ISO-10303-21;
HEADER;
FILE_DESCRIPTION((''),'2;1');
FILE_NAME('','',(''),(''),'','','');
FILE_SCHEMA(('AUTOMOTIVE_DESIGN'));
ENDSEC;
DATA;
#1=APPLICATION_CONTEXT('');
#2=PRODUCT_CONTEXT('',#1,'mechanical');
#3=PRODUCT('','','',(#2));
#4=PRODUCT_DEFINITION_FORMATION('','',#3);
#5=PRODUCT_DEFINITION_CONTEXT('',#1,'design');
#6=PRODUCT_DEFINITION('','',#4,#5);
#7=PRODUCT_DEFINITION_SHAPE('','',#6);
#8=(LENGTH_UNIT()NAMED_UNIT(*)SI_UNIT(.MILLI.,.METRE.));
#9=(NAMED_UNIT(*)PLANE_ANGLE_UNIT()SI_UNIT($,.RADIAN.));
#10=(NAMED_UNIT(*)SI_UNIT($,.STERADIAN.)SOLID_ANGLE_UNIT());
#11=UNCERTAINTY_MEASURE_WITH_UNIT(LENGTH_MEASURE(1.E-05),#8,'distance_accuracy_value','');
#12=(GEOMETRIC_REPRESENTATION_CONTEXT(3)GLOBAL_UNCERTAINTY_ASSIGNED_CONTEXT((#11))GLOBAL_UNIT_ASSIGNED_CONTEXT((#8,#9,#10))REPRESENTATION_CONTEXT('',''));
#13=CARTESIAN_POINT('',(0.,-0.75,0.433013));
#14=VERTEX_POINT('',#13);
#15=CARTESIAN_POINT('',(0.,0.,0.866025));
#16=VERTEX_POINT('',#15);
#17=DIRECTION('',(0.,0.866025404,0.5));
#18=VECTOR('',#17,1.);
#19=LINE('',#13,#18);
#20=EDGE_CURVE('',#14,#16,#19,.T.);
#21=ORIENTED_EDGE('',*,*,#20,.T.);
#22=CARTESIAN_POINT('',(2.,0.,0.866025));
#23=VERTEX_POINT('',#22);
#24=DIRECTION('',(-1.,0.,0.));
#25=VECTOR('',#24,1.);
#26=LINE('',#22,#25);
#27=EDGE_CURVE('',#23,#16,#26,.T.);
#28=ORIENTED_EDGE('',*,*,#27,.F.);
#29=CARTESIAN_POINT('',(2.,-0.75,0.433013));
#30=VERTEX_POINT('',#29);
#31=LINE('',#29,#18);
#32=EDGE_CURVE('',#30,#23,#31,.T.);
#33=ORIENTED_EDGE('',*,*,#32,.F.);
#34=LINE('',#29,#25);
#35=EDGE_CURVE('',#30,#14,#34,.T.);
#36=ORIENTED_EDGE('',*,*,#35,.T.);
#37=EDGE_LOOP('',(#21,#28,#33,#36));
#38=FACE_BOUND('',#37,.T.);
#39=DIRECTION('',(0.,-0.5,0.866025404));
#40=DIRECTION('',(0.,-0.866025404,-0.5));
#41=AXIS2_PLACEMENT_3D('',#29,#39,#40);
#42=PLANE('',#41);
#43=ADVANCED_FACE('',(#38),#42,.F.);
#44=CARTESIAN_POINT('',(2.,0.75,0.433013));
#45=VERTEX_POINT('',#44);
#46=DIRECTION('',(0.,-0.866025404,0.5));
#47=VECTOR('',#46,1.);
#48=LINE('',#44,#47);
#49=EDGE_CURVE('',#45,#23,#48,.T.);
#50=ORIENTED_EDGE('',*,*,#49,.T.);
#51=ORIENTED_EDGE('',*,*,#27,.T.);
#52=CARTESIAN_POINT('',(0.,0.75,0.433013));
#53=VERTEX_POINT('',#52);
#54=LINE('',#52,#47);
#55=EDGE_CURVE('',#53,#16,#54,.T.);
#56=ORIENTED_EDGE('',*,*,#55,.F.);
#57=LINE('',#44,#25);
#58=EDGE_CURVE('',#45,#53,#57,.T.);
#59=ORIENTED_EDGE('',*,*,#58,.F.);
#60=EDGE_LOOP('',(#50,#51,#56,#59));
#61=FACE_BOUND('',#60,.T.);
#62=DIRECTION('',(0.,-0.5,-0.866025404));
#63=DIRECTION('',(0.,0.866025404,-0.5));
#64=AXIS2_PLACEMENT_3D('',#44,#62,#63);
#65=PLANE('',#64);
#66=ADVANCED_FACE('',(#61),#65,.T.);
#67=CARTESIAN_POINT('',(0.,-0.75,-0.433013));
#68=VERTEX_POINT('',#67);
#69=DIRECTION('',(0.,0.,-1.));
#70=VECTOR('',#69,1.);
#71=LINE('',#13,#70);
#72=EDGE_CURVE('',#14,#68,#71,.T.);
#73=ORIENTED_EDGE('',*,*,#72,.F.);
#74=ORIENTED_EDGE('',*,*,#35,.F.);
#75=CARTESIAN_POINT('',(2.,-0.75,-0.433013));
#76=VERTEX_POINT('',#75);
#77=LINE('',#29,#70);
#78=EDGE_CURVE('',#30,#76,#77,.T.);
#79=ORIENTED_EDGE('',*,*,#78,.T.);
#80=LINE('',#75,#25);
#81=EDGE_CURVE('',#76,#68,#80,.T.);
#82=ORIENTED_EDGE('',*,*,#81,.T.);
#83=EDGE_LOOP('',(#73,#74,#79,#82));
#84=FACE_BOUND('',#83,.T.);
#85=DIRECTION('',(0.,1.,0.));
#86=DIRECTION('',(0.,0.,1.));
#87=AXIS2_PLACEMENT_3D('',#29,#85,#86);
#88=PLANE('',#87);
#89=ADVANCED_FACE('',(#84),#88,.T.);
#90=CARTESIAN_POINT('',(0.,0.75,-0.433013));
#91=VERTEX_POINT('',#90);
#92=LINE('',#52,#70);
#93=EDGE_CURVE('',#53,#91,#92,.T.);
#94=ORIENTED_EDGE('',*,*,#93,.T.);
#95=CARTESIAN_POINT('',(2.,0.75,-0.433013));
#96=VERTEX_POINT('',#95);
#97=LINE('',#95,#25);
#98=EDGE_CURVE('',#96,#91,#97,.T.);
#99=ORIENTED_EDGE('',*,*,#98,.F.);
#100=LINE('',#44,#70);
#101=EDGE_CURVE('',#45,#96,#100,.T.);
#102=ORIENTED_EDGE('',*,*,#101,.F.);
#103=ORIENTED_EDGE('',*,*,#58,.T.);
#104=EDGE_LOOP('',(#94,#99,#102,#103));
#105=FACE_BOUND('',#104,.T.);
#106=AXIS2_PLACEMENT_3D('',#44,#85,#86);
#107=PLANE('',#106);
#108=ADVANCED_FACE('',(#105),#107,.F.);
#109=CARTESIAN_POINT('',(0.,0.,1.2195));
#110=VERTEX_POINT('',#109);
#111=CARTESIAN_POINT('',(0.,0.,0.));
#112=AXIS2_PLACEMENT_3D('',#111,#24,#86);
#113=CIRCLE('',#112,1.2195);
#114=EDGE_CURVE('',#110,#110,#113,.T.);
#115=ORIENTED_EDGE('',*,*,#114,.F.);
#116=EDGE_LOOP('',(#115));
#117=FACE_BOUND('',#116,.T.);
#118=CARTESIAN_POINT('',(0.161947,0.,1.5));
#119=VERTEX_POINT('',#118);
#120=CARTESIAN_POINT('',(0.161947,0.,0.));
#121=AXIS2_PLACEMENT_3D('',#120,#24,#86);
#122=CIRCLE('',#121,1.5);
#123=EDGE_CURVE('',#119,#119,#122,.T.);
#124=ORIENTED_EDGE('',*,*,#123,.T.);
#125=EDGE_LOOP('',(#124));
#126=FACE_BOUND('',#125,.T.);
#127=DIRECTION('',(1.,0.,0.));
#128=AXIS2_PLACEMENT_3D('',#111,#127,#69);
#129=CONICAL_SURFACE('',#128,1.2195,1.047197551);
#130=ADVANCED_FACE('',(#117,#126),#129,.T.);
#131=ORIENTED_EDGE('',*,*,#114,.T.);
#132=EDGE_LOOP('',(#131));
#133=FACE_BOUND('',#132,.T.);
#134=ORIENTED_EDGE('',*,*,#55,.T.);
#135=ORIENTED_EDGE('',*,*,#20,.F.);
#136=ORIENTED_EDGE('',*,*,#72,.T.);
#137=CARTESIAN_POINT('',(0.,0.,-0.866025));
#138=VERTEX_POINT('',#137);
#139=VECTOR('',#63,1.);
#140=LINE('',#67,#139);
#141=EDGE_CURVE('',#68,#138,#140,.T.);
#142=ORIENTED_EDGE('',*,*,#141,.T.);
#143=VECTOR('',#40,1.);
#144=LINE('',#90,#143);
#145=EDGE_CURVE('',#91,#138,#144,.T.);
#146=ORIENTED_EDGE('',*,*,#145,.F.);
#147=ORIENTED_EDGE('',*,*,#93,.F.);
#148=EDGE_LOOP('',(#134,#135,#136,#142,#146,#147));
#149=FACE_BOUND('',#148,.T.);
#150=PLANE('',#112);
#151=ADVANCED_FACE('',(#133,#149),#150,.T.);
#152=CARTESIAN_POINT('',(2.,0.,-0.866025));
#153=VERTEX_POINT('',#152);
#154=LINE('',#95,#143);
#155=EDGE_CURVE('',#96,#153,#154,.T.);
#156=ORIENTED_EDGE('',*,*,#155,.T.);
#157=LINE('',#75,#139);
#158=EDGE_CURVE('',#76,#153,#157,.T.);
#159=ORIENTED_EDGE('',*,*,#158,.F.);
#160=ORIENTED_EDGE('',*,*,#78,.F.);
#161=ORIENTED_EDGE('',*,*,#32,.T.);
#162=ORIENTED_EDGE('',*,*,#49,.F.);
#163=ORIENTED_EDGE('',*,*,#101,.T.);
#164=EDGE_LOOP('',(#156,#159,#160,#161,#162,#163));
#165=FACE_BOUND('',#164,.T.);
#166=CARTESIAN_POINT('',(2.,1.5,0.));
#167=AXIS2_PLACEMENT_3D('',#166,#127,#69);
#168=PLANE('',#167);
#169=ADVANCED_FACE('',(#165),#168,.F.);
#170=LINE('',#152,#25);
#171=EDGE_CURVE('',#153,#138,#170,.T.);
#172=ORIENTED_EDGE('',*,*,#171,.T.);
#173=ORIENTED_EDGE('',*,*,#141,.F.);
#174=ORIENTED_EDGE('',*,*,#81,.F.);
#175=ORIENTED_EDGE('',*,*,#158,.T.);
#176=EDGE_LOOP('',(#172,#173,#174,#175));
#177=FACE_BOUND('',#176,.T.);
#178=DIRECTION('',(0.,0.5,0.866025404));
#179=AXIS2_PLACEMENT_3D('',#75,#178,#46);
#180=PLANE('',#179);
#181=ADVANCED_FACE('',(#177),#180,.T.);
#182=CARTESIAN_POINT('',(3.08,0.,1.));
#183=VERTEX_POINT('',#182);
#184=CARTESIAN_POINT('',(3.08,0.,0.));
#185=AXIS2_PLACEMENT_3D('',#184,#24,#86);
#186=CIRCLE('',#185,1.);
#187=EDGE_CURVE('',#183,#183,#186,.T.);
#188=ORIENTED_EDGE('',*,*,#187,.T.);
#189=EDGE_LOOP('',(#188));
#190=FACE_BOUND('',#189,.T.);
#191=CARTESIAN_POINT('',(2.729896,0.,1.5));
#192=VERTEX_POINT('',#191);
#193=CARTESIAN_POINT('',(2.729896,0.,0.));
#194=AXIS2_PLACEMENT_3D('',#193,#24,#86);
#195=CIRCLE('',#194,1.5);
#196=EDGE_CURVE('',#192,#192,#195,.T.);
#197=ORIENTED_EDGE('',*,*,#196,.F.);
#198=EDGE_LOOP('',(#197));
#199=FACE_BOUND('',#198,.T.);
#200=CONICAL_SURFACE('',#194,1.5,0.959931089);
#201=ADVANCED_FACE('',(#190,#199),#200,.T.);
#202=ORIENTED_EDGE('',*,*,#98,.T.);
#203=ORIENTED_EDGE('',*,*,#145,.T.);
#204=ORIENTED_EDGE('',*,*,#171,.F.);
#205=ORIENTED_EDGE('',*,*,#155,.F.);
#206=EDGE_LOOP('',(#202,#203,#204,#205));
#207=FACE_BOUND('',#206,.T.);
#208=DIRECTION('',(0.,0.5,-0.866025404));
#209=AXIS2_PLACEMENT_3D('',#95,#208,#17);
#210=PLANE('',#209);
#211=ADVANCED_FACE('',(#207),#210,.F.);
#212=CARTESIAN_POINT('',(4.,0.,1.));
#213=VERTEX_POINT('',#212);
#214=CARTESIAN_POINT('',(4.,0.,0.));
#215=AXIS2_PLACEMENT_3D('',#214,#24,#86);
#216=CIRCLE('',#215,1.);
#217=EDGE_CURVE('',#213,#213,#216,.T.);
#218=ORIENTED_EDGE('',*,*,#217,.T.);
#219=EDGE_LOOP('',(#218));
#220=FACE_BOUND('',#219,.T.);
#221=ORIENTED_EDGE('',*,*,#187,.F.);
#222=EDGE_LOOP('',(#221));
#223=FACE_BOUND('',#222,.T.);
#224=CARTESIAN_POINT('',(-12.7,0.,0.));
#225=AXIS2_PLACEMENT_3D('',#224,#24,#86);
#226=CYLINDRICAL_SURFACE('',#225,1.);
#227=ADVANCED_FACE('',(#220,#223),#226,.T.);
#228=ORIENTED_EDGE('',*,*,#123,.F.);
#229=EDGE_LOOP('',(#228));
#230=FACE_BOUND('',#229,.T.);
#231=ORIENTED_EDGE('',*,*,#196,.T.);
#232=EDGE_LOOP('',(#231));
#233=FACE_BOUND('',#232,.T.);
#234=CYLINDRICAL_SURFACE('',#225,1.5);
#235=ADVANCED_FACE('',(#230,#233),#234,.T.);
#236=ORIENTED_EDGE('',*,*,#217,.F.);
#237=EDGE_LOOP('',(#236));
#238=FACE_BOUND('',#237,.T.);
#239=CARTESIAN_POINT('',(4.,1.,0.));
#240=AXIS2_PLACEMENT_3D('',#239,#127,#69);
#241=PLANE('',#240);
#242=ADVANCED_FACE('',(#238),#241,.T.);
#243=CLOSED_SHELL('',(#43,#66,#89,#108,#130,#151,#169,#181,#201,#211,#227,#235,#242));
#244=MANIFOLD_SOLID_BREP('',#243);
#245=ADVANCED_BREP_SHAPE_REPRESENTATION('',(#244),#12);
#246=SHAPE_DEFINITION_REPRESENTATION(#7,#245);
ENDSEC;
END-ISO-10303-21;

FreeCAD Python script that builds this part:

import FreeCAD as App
import Part
import Sketcher
Q = App.Units.Quantity

doc = App.newDocument("Part")
body = doc.addObject("PartDesign::Body", "Body")

sketch1 = doc.addObject("Sketcher::SketchObject", "Sketch")
body.addObject(sketch1)
sketch1.AttachmentSupport = (doc.XY_Plane, [""])
sketch1.MapMode = "FlatFace"
sketch1.addGeometry(Part.LineSegment(App.Vector(0, 1.22, 0), App.Vector(0, 0, 0)), False)
sketch1.addGeometry(Part.LineSegment(App.Vector(0, 0, 0), App.Vector(4, 0, 0)), False)
sketch1.addGeometry(Part.LineSegment(App.Vector(4, 0, 0), App.Vector(4, 1, 0)), False)
sketch1.addGeometry(Part.LineSegment(App.Vector(4, 1, 0), App.Vector(3.08, 1, 0)), False)
sketch1.addGeometry(Part.LineSegment(App.Vector(3.08, 1, 0), App.Vector(2.73, 1.5, 0)), False)
sketch1.addGeometry(Part.LineSegment(App.Vector(2.73, 1.5, 0), App.Vector(0.16, 1.5, 0)), False)
sketch1.addGeometry(Part.LineSegment(App.Vector(0.16, 1.5, 0), App.Vector(0, 1.22, 0)), False)
sketch1.addConstraint(Sketcher.Constraint("Coincident", 0, 2, 1, 1))
sketch1.addConstraint(Sketcher.Constraint("Coincident", 1, 2, 2, 1))
sketch1.addConstraint(Sketcher.Constraint("Coincident", 2, 2, 3, 1))
sketch1.addConstraint(Sketcher.Constraint("Coincident", 3, 2, 4, 1))
sketch1.addConstraint(Sketcher.Constraint("Coincident", 4, 2, 5, 1))
sketch1.addConstraint(Sketcher.Constraint("Coincident", 5, 2, 6, 1))
sketch1.addConstraint(Sketcher.Constraint("Coincident", 6, 2, 0, 1))
sketch1.addConstraint(Sketcher.Constraint("Vertical", 0))
sketch1.addConstraint(Sketcher.Constraint("Horizontal", 1))
sketch1.addConstraint(Sketcher.Constraint("Vertical", 2))
sketch1.addConstraint(Sketcher.Constraint("Horizontal", 3))
sketch1.addConstraint(Sketcher.Constraint("Horizontal", 5))
sketch1.addConstraint(Sketcher.Constraint("Coincident", 0, 2, -1, 1))
sketch1.addConstraint(Sketcher.Constraint("DistanceX", 1, 1, 1, 2, Q("4 mm")))
sketch1.addConstraint(Sketcher.Constraint("DistanceY", 2, 1, 2, 2, Q("1 mm")))
sketch1.addConstraint(Sketcher.Constraint("Angle", 4, Q("125 deg")))
sketch1.addConstraint(Sketcher.Constraint("Angle", 6, Q("-120 deg")))
sketch1.addConstraint(Sketcher.Constraint("DistanceX", 3, 2, 3, 1, Q("0.92 mm")))
sketch1.addConstraint(Sketcher.Constraint("DistanceY", -1, 1, 4, 2, Q("1.5 mm")))
sketch1.addConstraint(Sketcher.Constraint("DistanceY", 0, 2, 0, 1, Q("1.2195 mm")))
revolution = doc.addObject("PartDesign::Revolution", "Revolution")
body.addObject(revolution)
revolution.Profile = sketch1
revolution.ReferenceAxis = (sketch1, ["H_Axis"])
revolution.Angle = 360

sketch2 = doc.addObject("Sketcher::SketchObject", "Sketch001")
body.addObject(sketch2)
sketch2.AttachmentSupport = (doc.YZ_Plane, [""])
sketch2.MapMode = "FlatFace"
sketch2.addGeometry(Part.LineSegment(App.Vector(0.8, 0.4, 0), App.Vector(0.8, -0.4, 0)), False)
sketch2.addGeometry(Part.LineSegment(App.Vector(0.8, -0.4, 0), App.Vector(0, -0.9, 0)), False)
sketch2.addGeometry(Part.LineSegment(App.Vector(0, -0.9, 0), App.Vector(-0.8, -0.4, 0)), False)
sketch2.addGeometry(Part.LineSegment(App.Vector(-0.8, -0.4, 0), App.Vector(-0.8, 0.4, 0)), False)
sketch2.addGeometry(Part.LineSegment(App.Vector(-0.8, 0.4, 0), App.Vector(0, 0.9, 0)), False)
sketch2.addGeometry(Part.LineSegment(App.Vector(0, 0.9, 0), App.Vector(0.8, 0.4, 0)), False)
sketch2.addConstraint(Sketcher.Constraint("Coincident", 0, 2, 1, 1))
sketch2.addConstraint(Sketcher.Constraint("Coincident", 1, 2, 2, 1))
sketch2.addConstraint(Sketcher.Constraint("Coincident", 2, 2, 3, 1))
sketch2.addConstraint(Sketcher.Constraint("Coincident", 3, 2, 4, 1))
sketch2.addConstraint(Sketcher.Constraint("Coincident", 4, 2, 5, 1))
sketch2.addConstraint(Sketcher.Constraint("Coincident", 5, 2, 0, 1))
sketch2.addConstraint(Sketcher.Constraint("Vertical", 0))
sketch2.addConstraint(Sketcher.Constraint("Vertical", 3))
sketch2.addConstraint(Sketcher.Constraint("Symmetric", 0, 2, 3, 2, -1, 1))
sketch2.addConstraint(Sketcher.Constraint("Symmetric", 1, 2, 4, 2, -1, 1))
sketch2.addConstraint(Sketcher.Constraint("PointOnObject", 1, 2, -2))
sketch2.addConstraint(Sketcher.Constraint("Parallel", 2, 5))
sketch2.addConstraint(Sketcher.Constraint("Horizontal", 0, 2, 2, 2))
sketch2.addConstraint(Sketcher.Constraint("Angle", 1, Q("-150 deg")))
sketch2.addConstraint(Sketcher.Constraint("DistanceX", 2, 2, 0, 2, Q("1.5 mm")))
sketch2.addConstraint(Sketcher.Constraint("DistanceY", 0, 2, 0, 1, Q("0.866025 mm")))
pocket1 = doc.addObject("PartDesign::Pocket", "Pocket")
body.addObject(pocket1)
pocket1.Profile = sketch2
pocket1.Length = 2
pocket1.Reversed = True

doc.recompute()
